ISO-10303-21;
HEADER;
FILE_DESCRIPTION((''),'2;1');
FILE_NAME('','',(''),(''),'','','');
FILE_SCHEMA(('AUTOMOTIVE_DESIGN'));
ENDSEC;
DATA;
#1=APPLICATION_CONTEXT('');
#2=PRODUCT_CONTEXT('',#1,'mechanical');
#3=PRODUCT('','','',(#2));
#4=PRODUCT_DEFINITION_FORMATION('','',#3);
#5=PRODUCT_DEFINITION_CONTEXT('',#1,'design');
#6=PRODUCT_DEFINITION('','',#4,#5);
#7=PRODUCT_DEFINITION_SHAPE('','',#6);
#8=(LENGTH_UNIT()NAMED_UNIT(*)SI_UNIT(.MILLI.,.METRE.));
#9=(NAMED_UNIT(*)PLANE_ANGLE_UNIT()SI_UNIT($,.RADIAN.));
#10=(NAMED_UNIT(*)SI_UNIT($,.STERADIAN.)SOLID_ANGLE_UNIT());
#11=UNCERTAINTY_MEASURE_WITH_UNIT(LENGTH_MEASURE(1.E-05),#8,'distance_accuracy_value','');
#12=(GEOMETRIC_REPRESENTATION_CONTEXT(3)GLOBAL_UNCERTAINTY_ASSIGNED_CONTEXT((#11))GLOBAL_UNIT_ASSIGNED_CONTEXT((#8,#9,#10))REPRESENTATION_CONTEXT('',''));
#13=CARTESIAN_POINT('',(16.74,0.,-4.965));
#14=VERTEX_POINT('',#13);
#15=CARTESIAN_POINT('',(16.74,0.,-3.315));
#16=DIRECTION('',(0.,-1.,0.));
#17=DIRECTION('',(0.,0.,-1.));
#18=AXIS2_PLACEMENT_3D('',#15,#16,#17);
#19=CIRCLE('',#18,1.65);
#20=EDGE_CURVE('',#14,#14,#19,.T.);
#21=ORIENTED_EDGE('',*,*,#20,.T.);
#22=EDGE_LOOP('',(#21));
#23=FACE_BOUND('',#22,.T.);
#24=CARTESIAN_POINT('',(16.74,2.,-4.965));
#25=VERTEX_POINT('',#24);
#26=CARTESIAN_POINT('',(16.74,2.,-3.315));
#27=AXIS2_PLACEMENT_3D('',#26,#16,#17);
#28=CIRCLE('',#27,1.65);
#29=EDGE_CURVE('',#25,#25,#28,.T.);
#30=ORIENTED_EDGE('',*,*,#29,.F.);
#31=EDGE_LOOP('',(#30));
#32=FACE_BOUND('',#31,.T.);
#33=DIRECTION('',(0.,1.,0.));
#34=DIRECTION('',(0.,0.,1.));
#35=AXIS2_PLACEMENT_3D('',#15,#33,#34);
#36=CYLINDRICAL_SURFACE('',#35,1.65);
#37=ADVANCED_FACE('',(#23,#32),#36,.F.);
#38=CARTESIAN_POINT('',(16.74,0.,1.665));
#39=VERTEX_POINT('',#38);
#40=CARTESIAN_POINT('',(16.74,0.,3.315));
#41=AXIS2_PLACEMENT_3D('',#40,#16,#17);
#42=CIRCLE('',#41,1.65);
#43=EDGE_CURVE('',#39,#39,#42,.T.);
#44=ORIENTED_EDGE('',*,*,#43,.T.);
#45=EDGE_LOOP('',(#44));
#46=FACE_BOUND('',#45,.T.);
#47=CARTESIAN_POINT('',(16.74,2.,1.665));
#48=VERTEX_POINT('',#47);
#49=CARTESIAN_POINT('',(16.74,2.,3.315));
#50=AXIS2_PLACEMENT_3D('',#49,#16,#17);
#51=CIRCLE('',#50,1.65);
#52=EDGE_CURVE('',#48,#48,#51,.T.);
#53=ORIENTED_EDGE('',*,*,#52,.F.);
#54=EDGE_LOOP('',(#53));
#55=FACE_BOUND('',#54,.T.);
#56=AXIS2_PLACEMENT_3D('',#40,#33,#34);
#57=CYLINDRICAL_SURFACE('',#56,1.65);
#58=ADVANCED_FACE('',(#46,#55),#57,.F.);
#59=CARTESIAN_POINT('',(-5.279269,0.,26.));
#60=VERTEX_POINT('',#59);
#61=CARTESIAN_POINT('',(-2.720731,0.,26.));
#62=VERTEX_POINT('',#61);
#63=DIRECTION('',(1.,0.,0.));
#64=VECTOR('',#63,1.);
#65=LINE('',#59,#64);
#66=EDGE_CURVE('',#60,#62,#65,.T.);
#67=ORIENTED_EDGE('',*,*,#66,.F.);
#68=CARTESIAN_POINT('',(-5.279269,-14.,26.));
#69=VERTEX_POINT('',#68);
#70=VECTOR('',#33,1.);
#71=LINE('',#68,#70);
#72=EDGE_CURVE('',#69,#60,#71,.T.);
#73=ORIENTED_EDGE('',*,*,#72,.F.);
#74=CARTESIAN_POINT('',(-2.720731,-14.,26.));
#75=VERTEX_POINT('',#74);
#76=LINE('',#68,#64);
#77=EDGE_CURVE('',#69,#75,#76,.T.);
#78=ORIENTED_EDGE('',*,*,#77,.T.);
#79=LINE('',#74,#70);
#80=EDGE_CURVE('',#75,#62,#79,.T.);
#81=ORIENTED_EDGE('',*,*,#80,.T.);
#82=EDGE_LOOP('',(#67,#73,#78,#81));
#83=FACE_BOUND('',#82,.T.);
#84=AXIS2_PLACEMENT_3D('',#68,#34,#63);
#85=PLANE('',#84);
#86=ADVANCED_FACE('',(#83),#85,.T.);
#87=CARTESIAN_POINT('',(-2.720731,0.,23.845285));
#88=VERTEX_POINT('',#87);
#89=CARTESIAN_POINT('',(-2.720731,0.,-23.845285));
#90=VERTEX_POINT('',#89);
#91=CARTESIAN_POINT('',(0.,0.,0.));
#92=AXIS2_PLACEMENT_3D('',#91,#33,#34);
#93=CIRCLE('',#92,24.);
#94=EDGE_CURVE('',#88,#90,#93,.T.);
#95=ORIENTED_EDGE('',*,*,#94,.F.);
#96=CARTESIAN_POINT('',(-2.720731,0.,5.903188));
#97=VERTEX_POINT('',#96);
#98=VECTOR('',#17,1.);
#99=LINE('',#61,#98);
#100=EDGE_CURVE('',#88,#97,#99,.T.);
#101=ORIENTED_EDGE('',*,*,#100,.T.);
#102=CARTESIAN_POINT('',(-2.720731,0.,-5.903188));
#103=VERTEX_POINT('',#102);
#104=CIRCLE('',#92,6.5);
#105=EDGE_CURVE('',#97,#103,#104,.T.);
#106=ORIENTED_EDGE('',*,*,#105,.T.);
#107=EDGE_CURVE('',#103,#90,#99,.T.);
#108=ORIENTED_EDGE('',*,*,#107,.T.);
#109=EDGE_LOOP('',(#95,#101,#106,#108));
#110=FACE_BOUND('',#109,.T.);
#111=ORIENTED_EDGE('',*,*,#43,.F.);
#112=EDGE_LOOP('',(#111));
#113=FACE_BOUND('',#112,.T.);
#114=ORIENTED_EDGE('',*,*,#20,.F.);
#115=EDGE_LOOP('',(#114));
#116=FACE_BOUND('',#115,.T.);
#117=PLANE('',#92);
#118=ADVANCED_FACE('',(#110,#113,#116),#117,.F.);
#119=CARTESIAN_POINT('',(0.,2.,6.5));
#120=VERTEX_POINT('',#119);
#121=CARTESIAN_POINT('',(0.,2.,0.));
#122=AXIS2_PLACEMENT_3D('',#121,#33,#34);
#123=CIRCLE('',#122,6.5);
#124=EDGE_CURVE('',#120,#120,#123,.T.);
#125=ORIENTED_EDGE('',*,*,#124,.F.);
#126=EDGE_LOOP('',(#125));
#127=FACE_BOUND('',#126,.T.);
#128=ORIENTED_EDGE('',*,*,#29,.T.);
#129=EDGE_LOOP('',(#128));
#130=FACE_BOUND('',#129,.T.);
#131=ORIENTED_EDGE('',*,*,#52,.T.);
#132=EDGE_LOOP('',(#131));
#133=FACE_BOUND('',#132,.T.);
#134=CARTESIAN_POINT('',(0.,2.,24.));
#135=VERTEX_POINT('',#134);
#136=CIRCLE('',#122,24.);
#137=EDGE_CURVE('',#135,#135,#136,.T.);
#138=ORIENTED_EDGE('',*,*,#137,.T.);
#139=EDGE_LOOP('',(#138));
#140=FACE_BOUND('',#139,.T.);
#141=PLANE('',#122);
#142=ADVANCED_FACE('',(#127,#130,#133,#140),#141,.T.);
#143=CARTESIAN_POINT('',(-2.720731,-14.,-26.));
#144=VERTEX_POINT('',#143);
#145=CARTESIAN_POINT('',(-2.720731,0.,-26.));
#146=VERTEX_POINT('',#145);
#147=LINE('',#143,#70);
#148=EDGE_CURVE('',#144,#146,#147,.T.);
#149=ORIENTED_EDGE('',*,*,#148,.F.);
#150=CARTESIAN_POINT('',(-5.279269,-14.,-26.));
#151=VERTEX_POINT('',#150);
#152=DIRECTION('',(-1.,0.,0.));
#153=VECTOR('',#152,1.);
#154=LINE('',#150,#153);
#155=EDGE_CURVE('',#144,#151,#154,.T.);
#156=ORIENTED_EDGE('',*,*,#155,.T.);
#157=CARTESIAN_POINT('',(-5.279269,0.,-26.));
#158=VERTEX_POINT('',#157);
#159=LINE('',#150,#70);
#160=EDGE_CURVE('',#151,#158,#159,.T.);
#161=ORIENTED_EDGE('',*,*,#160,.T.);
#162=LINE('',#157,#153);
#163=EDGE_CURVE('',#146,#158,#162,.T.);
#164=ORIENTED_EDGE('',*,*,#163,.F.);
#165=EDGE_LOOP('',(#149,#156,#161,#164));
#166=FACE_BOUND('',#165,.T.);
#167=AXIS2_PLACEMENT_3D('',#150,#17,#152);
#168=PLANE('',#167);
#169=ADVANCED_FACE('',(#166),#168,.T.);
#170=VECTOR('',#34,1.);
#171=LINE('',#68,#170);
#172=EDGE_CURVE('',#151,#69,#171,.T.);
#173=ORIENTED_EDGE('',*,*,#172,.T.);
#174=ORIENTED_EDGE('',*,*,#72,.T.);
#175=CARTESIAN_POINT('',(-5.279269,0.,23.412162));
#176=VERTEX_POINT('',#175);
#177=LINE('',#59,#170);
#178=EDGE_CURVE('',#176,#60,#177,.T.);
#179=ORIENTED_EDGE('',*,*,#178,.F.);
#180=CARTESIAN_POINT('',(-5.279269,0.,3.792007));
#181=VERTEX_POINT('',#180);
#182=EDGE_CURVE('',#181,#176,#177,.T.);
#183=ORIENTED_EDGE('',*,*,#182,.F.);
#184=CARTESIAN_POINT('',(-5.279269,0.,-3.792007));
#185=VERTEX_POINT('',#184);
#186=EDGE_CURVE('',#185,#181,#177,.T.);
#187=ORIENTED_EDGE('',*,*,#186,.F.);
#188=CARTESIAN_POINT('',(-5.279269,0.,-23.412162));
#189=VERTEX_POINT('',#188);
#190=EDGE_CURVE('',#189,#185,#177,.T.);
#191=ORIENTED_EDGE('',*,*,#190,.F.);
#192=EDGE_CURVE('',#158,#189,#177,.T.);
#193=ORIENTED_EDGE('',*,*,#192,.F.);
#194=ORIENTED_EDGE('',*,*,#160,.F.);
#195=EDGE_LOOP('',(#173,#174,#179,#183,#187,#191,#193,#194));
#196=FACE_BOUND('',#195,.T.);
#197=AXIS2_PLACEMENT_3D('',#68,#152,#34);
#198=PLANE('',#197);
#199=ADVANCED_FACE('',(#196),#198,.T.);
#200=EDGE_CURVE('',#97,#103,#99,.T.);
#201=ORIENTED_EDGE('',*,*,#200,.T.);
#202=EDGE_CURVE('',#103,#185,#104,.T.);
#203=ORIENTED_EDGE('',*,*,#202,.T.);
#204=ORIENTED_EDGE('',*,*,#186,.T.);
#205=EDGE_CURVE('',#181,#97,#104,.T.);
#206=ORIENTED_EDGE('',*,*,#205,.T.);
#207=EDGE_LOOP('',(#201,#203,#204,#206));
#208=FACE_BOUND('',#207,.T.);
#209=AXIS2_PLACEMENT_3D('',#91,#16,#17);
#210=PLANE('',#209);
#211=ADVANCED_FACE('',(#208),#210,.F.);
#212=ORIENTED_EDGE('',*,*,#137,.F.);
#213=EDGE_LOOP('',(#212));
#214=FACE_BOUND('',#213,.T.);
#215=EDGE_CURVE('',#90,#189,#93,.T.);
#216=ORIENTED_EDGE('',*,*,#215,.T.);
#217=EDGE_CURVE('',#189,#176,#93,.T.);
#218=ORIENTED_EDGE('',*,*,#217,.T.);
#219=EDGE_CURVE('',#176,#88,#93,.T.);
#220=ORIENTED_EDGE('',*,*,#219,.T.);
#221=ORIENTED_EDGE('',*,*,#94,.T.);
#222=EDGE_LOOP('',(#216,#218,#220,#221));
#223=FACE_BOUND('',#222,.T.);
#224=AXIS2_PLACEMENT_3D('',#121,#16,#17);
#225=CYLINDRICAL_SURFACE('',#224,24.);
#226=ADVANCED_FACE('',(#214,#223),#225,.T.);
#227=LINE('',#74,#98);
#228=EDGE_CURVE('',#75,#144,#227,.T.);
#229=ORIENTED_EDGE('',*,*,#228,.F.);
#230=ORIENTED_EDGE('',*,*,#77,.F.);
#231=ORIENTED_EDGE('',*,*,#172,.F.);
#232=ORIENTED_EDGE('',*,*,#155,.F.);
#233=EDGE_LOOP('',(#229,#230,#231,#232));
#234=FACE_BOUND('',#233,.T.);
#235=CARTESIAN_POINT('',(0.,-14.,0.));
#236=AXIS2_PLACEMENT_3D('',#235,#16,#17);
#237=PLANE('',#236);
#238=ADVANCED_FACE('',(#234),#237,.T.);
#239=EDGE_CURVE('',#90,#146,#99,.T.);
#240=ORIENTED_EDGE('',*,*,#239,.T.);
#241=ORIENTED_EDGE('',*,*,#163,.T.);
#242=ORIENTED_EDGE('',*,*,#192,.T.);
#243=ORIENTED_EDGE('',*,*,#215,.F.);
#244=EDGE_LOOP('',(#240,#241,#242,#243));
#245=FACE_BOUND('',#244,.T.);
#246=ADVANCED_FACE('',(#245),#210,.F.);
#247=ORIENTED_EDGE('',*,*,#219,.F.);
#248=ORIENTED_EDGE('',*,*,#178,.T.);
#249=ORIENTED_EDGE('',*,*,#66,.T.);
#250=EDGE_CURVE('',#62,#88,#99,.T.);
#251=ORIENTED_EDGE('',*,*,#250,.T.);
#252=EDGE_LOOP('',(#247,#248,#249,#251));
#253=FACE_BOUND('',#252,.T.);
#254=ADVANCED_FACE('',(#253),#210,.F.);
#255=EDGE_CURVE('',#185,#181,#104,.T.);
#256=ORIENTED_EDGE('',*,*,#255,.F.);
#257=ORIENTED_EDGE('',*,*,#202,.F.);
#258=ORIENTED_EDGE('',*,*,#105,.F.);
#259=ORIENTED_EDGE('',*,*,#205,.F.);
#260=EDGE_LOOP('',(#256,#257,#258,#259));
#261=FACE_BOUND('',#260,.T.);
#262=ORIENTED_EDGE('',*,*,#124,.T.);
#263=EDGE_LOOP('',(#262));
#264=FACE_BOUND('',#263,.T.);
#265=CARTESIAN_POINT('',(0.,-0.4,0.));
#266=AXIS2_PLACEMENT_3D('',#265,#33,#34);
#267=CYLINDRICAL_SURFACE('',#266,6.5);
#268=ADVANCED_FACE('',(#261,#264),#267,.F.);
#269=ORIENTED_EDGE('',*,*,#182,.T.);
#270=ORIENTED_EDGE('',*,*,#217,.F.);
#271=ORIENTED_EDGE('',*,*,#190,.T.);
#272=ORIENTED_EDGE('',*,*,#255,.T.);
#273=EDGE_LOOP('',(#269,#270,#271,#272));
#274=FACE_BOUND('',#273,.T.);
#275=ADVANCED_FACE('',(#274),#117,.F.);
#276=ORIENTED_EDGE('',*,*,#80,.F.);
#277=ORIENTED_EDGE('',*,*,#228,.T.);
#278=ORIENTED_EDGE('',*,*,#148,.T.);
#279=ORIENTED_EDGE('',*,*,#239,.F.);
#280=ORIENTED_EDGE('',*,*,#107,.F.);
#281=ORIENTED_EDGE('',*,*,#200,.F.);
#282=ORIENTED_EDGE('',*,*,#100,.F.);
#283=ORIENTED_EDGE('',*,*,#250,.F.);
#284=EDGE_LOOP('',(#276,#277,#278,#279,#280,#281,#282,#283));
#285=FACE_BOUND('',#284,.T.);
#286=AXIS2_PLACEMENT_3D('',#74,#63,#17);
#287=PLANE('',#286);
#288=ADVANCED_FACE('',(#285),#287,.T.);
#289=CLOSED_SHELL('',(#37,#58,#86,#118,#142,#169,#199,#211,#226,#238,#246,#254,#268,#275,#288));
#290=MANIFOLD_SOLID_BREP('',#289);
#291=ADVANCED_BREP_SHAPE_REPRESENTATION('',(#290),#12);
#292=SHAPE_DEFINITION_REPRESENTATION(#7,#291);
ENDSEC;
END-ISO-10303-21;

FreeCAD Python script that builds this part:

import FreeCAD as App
import Part
import Sketcher

V = App.Vector
Q = App.Units.Quantity

doc = App.newDocument("Part")
params = doc.addObject("Spreadsheet::Sheet", "Params")
for row, (alias, value) in enumerate([
    ("sketch1_diameter", "48 mm"),
    ("pad1_length", "2 mm"),
    ("sketch2_diameter", "13 mm"),
    ("pocket1_length", "2.4 mm"),
    ("sketch3_diameter", "3.3 mm"),
    ("sketch4_height", "52 mm"),
    ("pad2_length", "14 mm"),
], start=1):
    params.set(f"A{row}", alias)
    params.set(f"B{row}", "=" + value)
    params.setAlias(f"B{row}", alias)

body = doc.addObject("PartDesign::Body", "Body")

# Sketch on XZ plane
sketch1 = doc.addObject("Sketcher::SketchObject", "Sketch")
body.addObject(sketch1)
sketch1.AttachmentSupport = (doc.XZ_Plane, [""])
sketch1.MapMode = "FlatFace"
sketch1.addGeometry(Part.Circle(V(0, 0, 0), V(0, 0, 1), 24), False)
sketch1.addConstraint([
    Sketcher.Constraint("Coincident", 0, 3, -1, 1),
    Sketcher.Constraint("Diameter", 0, Q("48 mm")),
])
sketch1.setExpression("Constraints[1]", "Params.sketch1_diameter")
pad1 = doc.addObject("PartDesign::Pad", "Pad")
body.addObject(pad1)
pad1.Profile = sketch1
pad1.setExpression("Length", "Params.pad1_length")
pad1.Reversed = True

# Sketch on XZ plane
sketch2 = doc.addObject("Sketcher::SketchObject", "Sketch001")
body.addObject(sketch2)
sketch2.AttachmentSupport = (doc.XZ_Plane, [""])
sketch2.MapMode = "FlatFace"
sketch2.AttachmentOffset = App.Placement(V(0, 0, -2), App.Rotation())
sketch2.addGeometry(Part.Circle(V(0, 0, 0), V(0, 0, 1), 6.5), False)
sketch2.addConstraint([
    Sketcher.Constraint("Coincident", 0, 3, -1, 1),
    Sketcher.Constraint("Diameter", 0, Q("13 mm")),
])
sketch2.setExpression("Constraints[1]", "Params.sketch2_diameter")
pocket1 = doc.addObject("PartDesign::Pocket", "Pocket")
body.addObject(pocket1)
pocket1.Profile = sketch2
pocket1.setExpression("Length", "Params.pocket1_length")
pocket1.Reversed = True

# Sketch on XZ plane
sketch3 = doc.addObject("Sketcher::SketchObject", "Sketch002")
body.addObject(sketch3)
sketch3.AttachmentSupport = (doc.XZ_Plane, [""])
sketch3.MapMode = "FlatFace"
sketch3.AttachmentOffset = App.Placement(V(0, 0, -2), App.Rotation())
sketch3.addGeometry([
    Part.Circle(V(16.74, 3.315, 0), V(0, 0, 1), 1.65),
    Part.Circle(V(16.74, -3.315, 0), V(0, 0, 1), 1.65),
], False)
sketch3.addConstraint([
    Sketcher.Constraint("Equal", 0, 1),
    Sketcher.Constraint("Symmetric", 0, 3, 1, 3, -1),
    Sketcher.Constraint("Diameter", 0, Q("3.3 mm")),
    Sketcher.Constraint("DistanceX", -1, 1, 0, 3, Q("16.74 mm")),
    Sketcher.Constraint("DistanceY", 1, 3, 0, 3, Q("6.63 mm")),
])
sketch3.setExpression("Constraints[2]", "Params.sketch3_diameter")
pocket2 = doc.addObject("PartDesign::Pocket", "Pocket001")
body.addObject(pocket2)
pocket2.Profile = sketch3
pocket2.Type = "ThroughAll"
pocket2.Reversed = True

# Sketch on XZ plane
sketch4 = doc.addObject("Sketcher::SketchObject", "Sketch003")
body.addObject(sketch4)
sketch4.AttachmentSupport = (doc.XZ_Plane, [""])
sketch4.MapMode = "FlatFace"
sketch4.addGeometry([
    Part.LineSegment(V(-5.279269, -26, 0), V(-5.279269, 26, 0)),
    Part.LineSegment(V(-5.279269, 26, 0), V(-2.720731, 26, 0)),
    Part.LineSegment(V(-2.720731, 26, 0), V(-2.720731, -26, 0)),
    Part.LineSegment(V(-2.720731, -26, 0), V(-5.279269, -26, 0)),
], False)
sketch4.addConstraint([
    Sketcher.Constraint("Coincident", 0, 2, 1, 1),
    Sketcher.Constraint("Coincident", 1, 2, 2, 1),
    Sketcher.Constraint("Coincident", 2, 2, 3, 1),
    Sketcher.Constraint("Coincident", 3, 2, 0, 1),
    Sketcher.Constraint("Vertical", 0),
    Sketcher.Constraint("Horizontal", 1),
    Sketcher.Constraint("Vertical", 2),
    Sketcher.Constraint("Horizontal", 3),
    Sketcher.Constraint("DistanceY", 0, 1, 0, 2, Q("52 mm")),
    Sketcher.Constraint("DistanceY", -1, 1, 0, 2, Q("26 mm")),
    Sketcher.Constraint("DistanceX", 1, 1, 1, 2, Q("2.558538 mm")),
    Sketcher.Constraint("DistanceX", 0, 2, -1, 1, Q("5.279269 mm")),
])
sketch4.setExpression("Constraints[8]", "Params.sketch4_height")
pad2 = doc.addObject("PartDesign::Pad", "Pad001")
body.addObject(pad2)
pad2.Profile = sketch4
pad2.setExpression("Length", "Params.pad2_length")

doc.recompute()
